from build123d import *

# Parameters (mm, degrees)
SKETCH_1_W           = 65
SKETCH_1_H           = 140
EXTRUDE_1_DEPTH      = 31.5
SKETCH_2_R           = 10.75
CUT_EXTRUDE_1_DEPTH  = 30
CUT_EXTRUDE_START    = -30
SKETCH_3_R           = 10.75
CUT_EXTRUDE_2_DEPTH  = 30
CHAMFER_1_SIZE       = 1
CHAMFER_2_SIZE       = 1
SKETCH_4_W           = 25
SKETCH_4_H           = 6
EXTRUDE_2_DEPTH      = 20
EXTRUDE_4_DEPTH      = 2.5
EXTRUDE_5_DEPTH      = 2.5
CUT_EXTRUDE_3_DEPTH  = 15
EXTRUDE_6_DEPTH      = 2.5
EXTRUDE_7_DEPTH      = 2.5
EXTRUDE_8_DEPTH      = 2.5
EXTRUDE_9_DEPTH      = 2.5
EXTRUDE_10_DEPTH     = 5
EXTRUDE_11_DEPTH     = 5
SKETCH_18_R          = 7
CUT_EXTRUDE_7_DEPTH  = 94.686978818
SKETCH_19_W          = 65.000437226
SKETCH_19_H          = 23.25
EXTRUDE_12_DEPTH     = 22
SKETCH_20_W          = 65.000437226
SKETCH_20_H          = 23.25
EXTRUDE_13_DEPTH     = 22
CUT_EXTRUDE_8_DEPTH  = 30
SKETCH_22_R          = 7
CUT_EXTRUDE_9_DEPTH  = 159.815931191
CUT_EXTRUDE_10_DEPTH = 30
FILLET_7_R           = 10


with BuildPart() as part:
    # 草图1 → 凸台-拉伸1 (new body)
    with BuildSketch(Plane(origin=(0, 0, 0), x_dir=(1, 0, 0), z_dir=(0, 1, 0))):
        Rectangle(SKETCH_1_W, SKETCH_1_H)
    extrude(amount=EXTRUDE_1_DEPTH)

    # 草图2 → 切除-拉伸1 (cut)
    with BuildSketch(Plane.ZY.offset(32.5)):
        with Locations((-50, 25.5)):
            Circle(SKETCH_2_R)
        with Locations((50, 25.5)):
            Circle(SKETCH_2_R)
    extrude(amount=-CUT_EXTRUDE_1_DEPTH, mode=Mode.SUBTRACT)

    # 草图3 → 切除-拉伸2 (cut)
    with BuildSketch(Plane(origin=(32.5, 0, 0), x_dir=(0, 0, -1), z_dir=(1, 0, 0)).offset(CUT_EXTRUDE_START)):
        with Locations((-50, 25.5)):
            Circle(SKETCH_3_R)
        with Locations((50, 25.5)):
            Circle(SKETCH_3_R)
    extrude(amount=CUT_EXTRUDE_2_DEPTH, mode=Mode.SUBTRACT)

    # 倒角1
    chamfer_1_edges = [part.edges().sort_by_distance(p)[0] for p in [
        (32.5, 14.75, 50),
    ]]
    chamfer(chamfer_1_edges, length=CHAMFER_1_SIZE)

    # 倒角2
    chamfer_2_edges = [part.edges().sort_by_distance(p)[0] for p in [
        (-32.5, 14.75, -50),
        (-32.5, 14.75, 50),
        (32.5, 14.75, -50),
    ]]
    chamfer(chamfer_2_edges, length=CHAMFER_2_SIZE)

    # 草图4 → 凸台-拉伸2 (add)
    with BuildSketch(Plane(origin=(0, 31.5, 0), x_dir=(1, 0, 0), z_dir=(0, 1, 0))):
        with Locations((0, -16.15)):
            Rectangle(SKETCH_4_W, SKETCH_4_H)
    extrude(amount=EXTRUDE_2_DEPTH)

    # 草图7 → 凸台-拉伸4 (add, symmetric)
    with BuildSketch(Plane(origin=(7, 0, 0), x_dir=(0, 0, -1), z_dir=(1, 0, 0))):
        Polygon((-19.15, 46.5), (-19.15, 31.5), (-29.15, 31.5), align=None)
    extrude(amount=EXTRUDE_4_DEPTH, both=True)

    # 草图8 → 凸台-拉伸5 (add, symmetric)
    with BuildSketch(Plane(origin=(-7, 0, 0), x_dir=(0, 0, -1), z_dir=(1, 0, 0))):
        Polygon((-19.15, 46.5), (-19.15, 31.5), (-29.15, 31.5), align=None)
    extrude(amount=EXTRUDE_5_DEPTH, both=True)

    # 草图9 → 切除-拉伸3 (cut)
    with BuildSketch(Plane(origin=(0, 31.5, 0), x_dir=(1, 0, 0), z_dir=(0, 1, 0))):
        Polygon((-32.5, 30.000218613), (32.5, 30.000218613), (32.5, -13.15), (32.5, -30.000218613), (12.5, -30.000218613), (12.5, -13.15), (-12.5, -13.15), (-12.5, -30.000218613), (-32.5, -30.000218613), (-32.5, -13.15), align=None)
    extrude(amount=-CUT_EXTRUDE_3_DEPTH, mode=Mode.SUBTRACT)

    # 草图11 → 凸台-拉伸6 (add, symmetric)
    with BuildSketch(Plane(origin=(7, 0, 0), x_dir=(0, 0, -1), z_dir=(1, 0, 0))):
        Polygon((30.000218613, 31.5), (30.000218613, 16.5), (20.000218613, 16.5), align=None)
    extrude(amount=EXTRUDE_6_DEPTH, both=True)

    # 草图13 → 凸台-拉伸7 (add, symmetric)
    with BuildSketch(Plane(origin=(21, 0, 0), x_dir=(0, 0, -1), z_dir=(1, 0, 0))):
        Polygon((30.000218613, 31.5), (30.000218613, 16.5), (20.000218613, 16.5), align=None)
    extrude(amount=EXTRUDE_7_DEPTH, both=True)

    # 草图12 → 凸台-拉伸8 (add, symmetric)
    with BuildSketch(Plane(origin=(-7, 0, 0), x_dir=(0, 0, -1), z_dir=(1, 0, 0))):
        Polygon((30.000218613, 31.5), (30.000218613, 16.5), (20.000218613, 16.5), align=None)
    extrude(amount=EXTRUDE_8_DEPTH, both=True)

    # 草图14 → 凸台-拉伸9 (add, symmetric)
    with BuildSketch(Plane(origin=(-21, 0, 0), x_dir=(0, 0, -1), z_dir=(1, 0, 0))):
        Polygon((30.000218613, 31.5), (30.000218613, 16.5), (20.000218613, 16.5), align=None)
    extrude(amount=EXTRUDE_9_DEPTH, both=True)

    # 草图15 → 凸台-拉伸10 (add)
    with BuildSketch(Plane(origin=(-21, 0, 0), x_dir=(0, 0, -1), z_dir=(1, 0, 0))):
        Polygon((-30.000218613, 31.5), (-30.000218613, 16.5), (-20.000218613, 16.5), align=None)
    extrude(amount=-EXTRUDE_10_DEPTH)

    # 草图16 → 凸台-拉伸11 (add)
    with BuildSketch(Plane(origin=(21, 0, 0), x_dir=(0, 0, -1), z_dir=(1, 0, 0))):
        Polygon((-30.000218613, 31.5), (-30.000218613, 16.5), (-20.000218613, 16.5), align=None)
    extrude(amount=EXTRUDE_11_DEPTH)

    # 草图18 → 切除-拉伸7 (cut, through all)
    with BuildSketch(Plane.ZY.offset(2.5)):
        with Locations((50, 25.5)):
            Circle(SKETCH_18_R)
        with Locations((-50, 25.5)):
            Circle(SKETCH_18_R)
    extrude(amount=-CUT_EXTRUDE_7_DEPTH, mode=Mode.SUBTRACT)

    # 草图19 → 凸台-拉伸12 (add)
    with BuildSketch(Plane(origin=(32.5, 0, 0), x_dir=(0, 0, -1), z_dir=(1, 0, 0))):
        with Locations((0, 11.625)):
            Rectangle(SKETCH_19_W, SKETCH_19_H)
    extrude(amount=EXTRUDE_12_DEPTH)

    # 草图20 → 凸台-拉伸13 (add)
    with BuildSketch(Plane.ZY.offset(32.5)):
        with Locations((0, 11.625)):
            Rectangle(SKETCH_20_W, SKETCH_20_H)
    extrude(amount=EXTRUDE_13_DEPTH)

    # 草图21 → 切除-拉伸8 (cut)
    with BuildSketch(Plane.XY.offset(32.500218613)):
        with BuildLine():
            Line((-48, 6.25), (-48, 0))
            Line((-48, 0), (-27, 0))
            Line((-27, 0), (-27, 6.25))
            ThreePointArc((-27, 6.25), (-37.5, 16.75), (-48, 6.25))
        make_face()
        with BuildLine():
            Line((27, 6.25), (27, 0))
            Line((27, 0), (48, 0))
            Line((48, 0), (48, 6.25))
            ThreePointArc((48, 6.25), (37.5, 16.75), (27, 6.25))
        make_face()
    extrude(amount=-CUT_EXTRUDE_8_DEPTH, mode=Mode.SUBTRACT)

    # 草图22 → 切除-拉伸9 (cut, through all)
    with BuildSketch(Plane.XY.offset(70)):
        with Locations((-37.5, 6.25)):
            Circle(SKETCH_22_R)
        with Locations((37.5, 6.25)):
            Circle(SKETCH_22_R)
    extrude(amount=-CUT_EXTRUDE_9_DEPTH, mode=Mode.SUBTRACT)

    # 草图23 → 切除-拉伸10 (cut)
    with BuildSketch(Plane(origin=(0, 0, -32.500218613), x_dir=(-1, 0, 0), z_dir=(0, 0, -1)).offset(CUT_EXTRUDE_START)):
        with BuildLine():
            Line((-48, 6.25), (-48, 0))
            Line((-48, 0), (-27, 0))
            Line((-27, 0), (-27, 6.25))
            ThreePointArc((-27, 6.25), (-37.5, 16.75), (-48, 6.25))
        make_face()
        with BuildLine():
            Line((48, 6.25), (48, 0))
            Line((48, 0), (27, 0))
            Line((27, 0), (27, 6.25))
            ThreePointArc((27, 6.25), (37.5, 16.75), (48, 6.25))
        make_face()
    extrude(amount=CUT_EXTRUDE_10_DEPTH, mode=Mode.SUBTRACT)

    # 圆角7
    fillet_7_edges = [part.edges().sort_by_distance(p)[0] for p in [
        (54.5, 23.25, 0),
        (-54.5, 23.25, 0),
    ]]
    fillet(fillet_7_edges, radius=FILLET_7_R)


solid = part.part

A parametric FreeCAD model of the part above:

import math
import FreeCAD as App
import Part
import Sketcher
from FreeCAD import Vector


def edges_at(feature, points):
    """Names of the edges that pass closest to the given points."""
    edges = feature.Shape.Edges
    near = lambda p: min(range(len(edges)), key=lambda i: edges[i].distToShape(Part.Vertex(*p))[0])
    return sorted({f"Edge{near(p) + 1}" for p in points})

doc = App.newDocument("Part")
params = doc.addObject("Spreadsheet::Sheet", "Params")
for row, (alias, value) in enumerate([
    ("sketch1_width", "65 mm"),
    ("sketch1_height", "140 mm"),
    ("pad1_length", "31.5 mm"),
    ("sketch2_diameter", "21.5 mm"),
    ("pocket1_length", "30 mm"),
    ("sketch3_diameter", "21.5 mm"),
    ("pocket2_length", "30 mm"),
    ("chamfer_size", "1 mm"),
    ("chamfer2_size", "1 mm"),
    ("sketch4_width", "25 mm"),
    ("sketch4_height", "6 mm"),
    ("pad2_length", "20 mm"),
    ("sketch5_width", "15 mm"),
    ("sketch5_height", "10 mm"),
    ("pad3_length", "5 mm"),
    ("sketch6_width", "15 mm"),
    ("sketch6_height", "10 mm"),
    ("pad4_length", "5 mm"),
    ("sketch7_width", "65 mm"),
    ("sketch7_width2", "20 mm"),
    ("pocket3_length", "15 mm"),
    ("sketch8_width", "15 mm"),
    ("sketch8_height", "10 mm"),
    ("pad5_length", "5 mm"),
    ("sketch9_width", "15 mm"),
    ("sketch9_height", "10 mm"),
    ("pad6_length", "5 mm"),
    ("sketch10_width", "15 mm"),
    ("sketch10_height", "10 mm"),
    ("pad7_length", "5 mm"),
    ("sketch11_width", "15 mm"),
    ("sketch11_height", "10 mm"),
    ("pad8_length", "5 mm"),
    ("sketch12_width", "15 mm"),
    ("sketch12_height", "10 mm"),
    ("pad9_length", "5 mm"),
    ("sketch13_width", "15 mm"),
    ("sketch13_height", "10 mm"),
    ("pad10_length", "5 mm"),
    ("sketch14_diameter", "14 mm"),
    ("sketch15_width", "23.25 mm"),
    ("pad11_length", "22 mm"),
    ("sketch16_width", "23.25 mm"),
    ("pad12_length", "22 mm"),
    ("sketch17_radius", "10.5 mm"),
    ("sketch17_height", "6.25 mm"),
    ("pocket5_length", "30 mm"),
    ("sketch18_diameter", "14 mm"),
    ("sketch19_radius", "10.5 mm"),
    ("sketch19_height", "6.25 mm"),
    ("pocket7_length", "30 mm"),
    ("fillet_radius", "10 mm"),
], start=1):
    params.set(f"A{row}", alias)
    params.set(f"B{row}", "=" + value)
    params.setAlias(f"B{row}", alias)

body = doc.addObject("PartDesign::Body", "Body")

# Sketch on XZ plane
sketch1 = doc.addObject("Sketcher::SketchObject", "Sketch")
body.addObject(sketch1)
sketch1.AttachmentSupport = (doc.XZ_Plane, [""])
sketch1.MapMode = "FlatFace"
sketch1.addGeometry([
    Part.LineSegment(Vector(-32, -70, 0), Vector(-32, 70, 0)),
    Part.LineSegment(Vector(-32, 70, 0), Vector(32, 70, 0)),
    Part.LineSegment(Vector(32, 70, 0), Vector(32, -70, 0)),
    Part.LineSegment(Vector(32, -70, 0), Vector(-32, -70, 0)),
], False)
sketch1.addConstraint([
    Sketcher.Constraint("Coincident", 0, 2, 1, 1),
    Sketcher.Constraint("Coincident", 1, 2, 2, 1),
    Sketcher.Constraint("Coincident", 2, 2, 3, 1),
    Sketcher.Constraint("Coincident", 3, 2, 0, 1),
    Sketcher.Constraint("Vertical", 0),
    Sketcher.Constraint("Horizontal", 1),
    Sketcher.Constraint("Vertical", 2),
    Sketcher.Constraint("Horizontal", 3),
    Sketcher.Constraint("Symmetric", 0, 2, 2, 2, -1, 1),
    Sketcher.Constraint("DistanceX", 1, 1, 1, 2, 65.0),
    Sketcher.Constraint("DistanceY", 0, 1, 0, 2, 140.0),
])
sketch1.setExpression("Constraints[9]", "Params.sketch1_width")
sketch1.setExpression("Constraints[10]", "Params.sketch1_height")
pad1 = doc.addObject("PartDesign::Pad", "Pad")
body.addObject(pad1)
pad1.Profile = sketch1
pad1.setExpression("Length", "Params.pad1_length")
pad1.Reversed = True

# Sketch on YZ plane
sketch2 = doc.addObject("Sketcher::SketchObject", "Sketch001")
body.addObject(sketch2)
sketch2.AttachmentSupport = (doc.YZ_Plane, [""])
sketch2.MapMode = "FlatFace"
sketch2.AttachmentOffset = App.Placement(Vector(0, 0, -32.5), App.Rotation())
sketch2.addGeometry([
    Part.Circle(Vector(26, -50, 0), Vector(0, 0, 1), 11),
    Part.Circle(Vector(26, 50, 0), Vector(0, 0, 1), 11),
], False)
sketch2.addConstraint([
    Sketcher.Constraint("Equal", 0, 1),
    Sketcher.Constraint("Symmetric", 0, 3, 1, 3, -1),
    Sketcher.Constraint("Diameter", 0, 21.5),
    Sketcher.Constraint("DistanceY", 0, 3, -1, 1, 50.0),
    Sketcher.Constraint("DistanceX", -1, 1, 0, 3, 25.5),
])
sketch2.setExpression("Constraints[2]", "Params.sketch2_diameter")
pocket1 = doc.addObject("PartDesign::Pocket", "Pocket")
body.addObject(pocket1)
pocket1.Profile = sketch2
pocket1.setExpression("Length", "Params.pocket1_length")
pocket1.Reversed = True

# Sketch on YZ plane
sketch3 = doc.addObject("Sketcher::SketchObject", "Sketch002")
body.addObject(sketch3)
sketch3.AttachmentSupport = (doc.YZ_Plane, [""])
sketch3.MapMode = "FlatFace"
sketch3.AttachmentOffset = App.Placement(Vector(0, 0, 2.5), App.Rotation())
sketch3.addGeometry([
    Part.Circle(Vector(26, 50, 0), Vector(0, 0, 1), 11),
    Part.Circle(Vector(26, -50, 0), Vector(0, 0, 1), 11),
], False)
sketch3.addConstraint([
    Sketcher.Constraint("Equal", 0, 1),
    Sketcher.Constraint("Symmetric", 0, 3, 1, 3, -1),
    Sketcher.Constraint("Diameter", 0, 21.5),
    Sketcher.Constraint("DistanceY", -1, 1, 0, 3, 50.0),
    Sketcher.Constraint("DistanceX", -1, 1, 0, 3, 25.5),
])
sketch3.setExpression("Constraints[2]", "Params.sketch3_diameter")
pocket2 = doc.addObject("PartDesign::Pocket", "Pocket001")
body.addObject(pocket2)
pocket2.Profile = sketch3
pocket2.setExpression("Length", "Params.pocket2_length")
pocket2.Reversed = True
doc.recompute()

chamfer = doc.addObject("PartDesign::Chamfer", "Chamfer")
body.addObject(chamfer)
chamfer.Base = (pocket2, edges_at(pocket2, [(32.5, 14.75, 50)]))
chamfer.setExpression("Size", "Params.chamfer_size")
doc.recompute()

chamfer2 = doc.addObject("PartDesign::Chamfer", "Chamfer001")
body.addObject(chamfer2)
chamfer2.Base = (chamfer, edges_at(chamfer, [(-32.5, 14.75, -50), (-32.5, 14.75, 50), (32.5, 14.75, -50)]))
chamfer2.setExpression("Size", "Params.chamfer2_size")

# Sketch on XZ plane
sketch4 = doc.addObject("Sketcher::SketchObject", "Sketch003")
body.addObject(sketch4)
sketch4.AttachmentSupport = (doc.XZ_Plane, [""])
sketch4.MapMode = "FlatFace"
sketch4.AttachmentOffset = App.Placement(Vector(0, 0, -31.5), App.Rotation())
sketch4.addGeometry([
    Part.LineSegment(Vector(-12, 13, 0), Vector(-12, 19, 0)),
    Part.LineSegment(Vector(-12, 19, 0), Vector(12, 19, 0)),
    Part.LineSegment(Vector(12, 19, 0), Vector(12, 13, 0)),
    Part.LineSegment(Vector(12, 13, 0), Vector(-12, 13, 0)),
], False)
sketch4.addConstraint([
    Sketcher.Constraint("Coincident", 0, 2, 1, 1),
    Sketcher.Constraint("Coincident", 1, 2, 2, 1),
    Sketcher.Constraint("Coincident", 2, 2, 3, 1),
    Sketcher.Constraint("Coincident", 3, 2, 0, 1),
    Sketcher.Constraint("Vertical", 0),
    Sketcher.Constraint("Horizontal", 1),
    Sketcher.Constraint("Vertical", 2),
    Sketcher.Constraint("Horizontal", 3),
    Sketcher.Constraint("DistanceX", 1, 1, 1, 2, 25.0),
    Sketcher.Constraint("DistanceY", 0, 1, 0, 2, 6.0),
    Sketcher.Constraint("DistanceX", 0, 2, -1, 1, 12.5),
    Sketcher.Constraint("DistanceY", -1, 1, 0, 2, 19.15),
])
sketch4.setExpression("Constraints[8]", "Params.sketch4_width")
sketch4.setExpression("Constraints[9]", "Params.sketch4_height")
pad2 = doc.addObject("PartDesign::Pad", "Pad001")
body.addObject(pad2)
pad2.Profile = sketch4
pad2.setExpression("Length", "Params.pad2_length")
pad2.Reversed = True

# Sketch on YZ plane
sketch5 = doc.addObject("Sketcher::SketchObject", "Sketch004")
body.addObject(sketch5)
sketch5.AttachmentSupport = (doc.YZ_Plane, [""])
sketch5.MapMode = "FlatFace"
sketch5.AttachmentOffset = App.Placement(Vector(0, 0, 7), App.Rotation())
sketch5.addGeometry([
    Part.LineSegment(Vector(32, 19, 0), Vector(46, 19, 0)),
    Part.LineSegment(Vector(46, 19, 0), Vector(32, 29, 0)),
    Part.LineSegment(Vector(32, 29, 0), Vector(32, 19, 0)),
], False)
sketch5.addConstraint([
    Sketcher.Constraint("Coincident", 0, 2, 1, 1),
    Sketcher.Constraint("Coincident", 1, 2, 2, 1),
    Sketcher.Constraint("Coincident", 2, 2, 0, 1),
    Sketcher.Constraint("Horizontal", 0),
    Sketcher.Constraint("Vertical", 2),
    Sketcher.Constraint("DistanceX", 0, 1, 0, 2, 15.0),
    Sketcher.Constraint("DistanceY", 2, 2, 2, 1, 10.0),
    Sketcher.Constraint("DistanceX", -1, 1, 0, 2, 46.5),
    Sketcher.Constraint("DistanceY", -1, 1, 0, 2, 19.15),
])
sketch5.setExpression("Constraints[5]", "Params.sketch5_width")
sketch5.setExpression("Constraints[6]", "Params.sketch5_height")
pad3 = doc.addObject("PartDesign::Pad", "Pad002")
body.addObject(pad3)
pad3.Profile = sketch5
pad3.setExpression("Length", "Params.pad3_length")
pad3.Midplane = True

# Sketch on YZ plane
sketch6 = doc.addObject("Sketcher::SketchObject", "Sketch005")
body.addObject(sketch6)
sketch6.AttachmentSupport = (doc.YZ_Plane, [""])
sketch6.MapMode = "FlatFace"
sketch6.AttachmentOffset = App.Placement(Vector(0, 0, -7), App.Rotation())
sketch6.addGeometry([
    Part.LineSegment(Vector(32, 19, 0), Vector(46, 19, 0)),
    Part.LineSegment(Vector(46, 19, 0), Vector(32, 29, 0)),
    Part.LineSegment(Vector(32, 29, 0), Vector(32, 19, 0)),
], False)
sketch6.addConstraint([
    Sketcher.Constraint("Coincident", 0, 2, 1, 1),
    Sketcher.Constraint("Coincident", 1, 2, 2, 1),
    Sketcher.Constraint("Coincident", 2, 2, 0, 1),
    Sketcher.Constraint("Horizontal", 0),
    Sketcher.Constraint("Vertical", 2),
    Sketcher.Constraint("DistanceX", 0, 1, 0, 2, 15.0),
    Sketcher.Constraint("DistanceY", 2, 2, 2, 1, 10.0),
    Sketcher.Constraint("DistanceX", -1, 1, 0, 2, 46.5),
    Sketcher.Constraint("DistanceY", -1, 1, 0, 2, 19.15),
])
sketch6.setExpression("Constraints[5]", "Params.sketch6_width")
sketch6.setExpression("Constraints[6]", "Params.sketch6_height")
pad4 = doc.addObject("PartDesign::Pad", "Pad003")
body.addObject(pad4)
pad4.Profile = sketch6
pad4.setExpression("Length", "Params.pad4_length")
pad4.Midplane = True

# Sketch on XZ plane
sketch7 = doc.addObject("Sketcher::SketchObject", "Sketch006")
body.addObject(sketch7)
sketch7.AttachmentSupport = (doc.XZ_Plane, [""])
sketch7.MapMode = "FlatFace"
sketch7.AttachmentOffset = App.Placement(Vector(0, 0, -31.5), App.Rotation())
sketch7.addGeometry([
    Part.LineSegment(Vector(32, -30, 0), Vector(-32, -30, 0)),  # 0
    Part.LineSegment(Vector(-32, -30, 0), Vector(-32, 30, 0)),  # 1
    Part.LineSegment(Vector(-32, 30, 0), Vector(-12, 30, 0)),  # 2
    Part.LineSegment(Vector(-12, 30, 0), Vector(-12, 13, 0)),  # 3
    Part.LineSegment(Vector(-12, 13, 0), Vector(12, 13, 0)),  # 4
    Part.LineSegment(Vector(12, 13, 0), Vector(12, 30, 0)),  # 5
    Part.LineSegment(Vector(12, 30, 0), Vector(32, 30, 0)),  # 6
    Part.LineSegment(Vector(32, 30, 0), Vector(32, -30, 0)),  # 7
], False)
sketch7.addConstraint([
    Sketcher.Constraint("Coincident", 0, 2, 1, 1),
    Sketcher.Constraint("Coincident", 1, 2, 2, 1),
    Sketcher.Constraint("Coincident", 2, 2, 3, 1),
    Sketcher.Constraint("Coincident", 3, 2, 4, 1),
    Sketcher.Constraint("Coincident", 4, 2, 5, 1),
    Sketcher.Constraint("Coincident", 5, 2, 6, 1),
    Sketcher.Constraint("Coincident", 6, 2, 7, 1),
    Sketcher.Constraint("Coincident", 7, 2, 0, 1),
    Sketcher.Constraint("Horizontal", 0),
    Sketcher.Constraint("Vertical", 1),
    Sketcher.Constraint("Horizontal", 2),
    Sketcher.Constraint("Vertical", 3),
    Sketcher.Constraint("Horizontal", 4),
    Sketcher.Constraint("Vertical", 5),
    Sketcher.Constraint("Horizontal", 6),
    Sketcher.Constraint("Vertical", 7),
    Sketcher.Constraint("Symmetric", 0, 2, 6, 2, -1, 1),
    Sketcher.Constraint("Symmetric", 2, 2, 5, 2, -2),
    Sketcher.Constraint("DistanceX", 0, 2, 0, 1, 65.0),
    Sketcher.Constraint("DistanceX", 2, 1, 2, 2, 20.0),
    Sketcher.Constraint("DistanceY", -1, 1, 3, 2, 13.15),
    Sketcher.Constraint("DistanceY", 3, 2, 3, 1, 16.850219),
])
sketch7.setExpression("Constraints[18]", "Params.sketch7_width")
sketch7.setExpression("Constraints[19]", "Params.sketch7_width2")
pocket3 = doc.addObject("PartDesign::Pocket", "Pocket002")
body.addObject(pocket3)
pocket3.Profile = sketch7
pocket3.setExpression("Length", "Params.pocket3_length")
pocket3.Reversed = True

# Sketch on YZ plane
sketch8 = doc.addObject("Sketcher::SketchObject", "Sketch007")
body.addObject(sketch8)
sketch8.AttachmentSupport = (doc.YZ_Plane, [""])
sketch8.MapMode = "FlatFace"
sketch8.AttachmentOffset = App.Placement(Vector(0, 0, 7), App.Rotation())
sketch8.addGeometry([
    Part.LineSegment(Vector(16, -30, 0), Vector(32, -30, 0)),
    Part.LineSegment(Vector(32, -30, 0), Vector(16, -20, 0)),
    Part.LineSegment(Vector(16, -20, 0), Vector(16, -30, 0)),
], False)
sketch8.addConstraint([
    Sketcher.Constraint("Coincident", 0, 2, 1, 1),
    Sketcher.Constraint("Coincident", 1, 2, 2, 1),
    Sketcher.Constraint("Coincident", 2, 2, 0, 1),
    Sketcher.Constraint("Horizontal", 0),
    Sketcher.Constraint("Vertical", 2),
    Sketcher.Constraint("DistanceX", 0, 1, 0, 2, 15.0),
    Sketcher.Constraint("DistanceY", 2, 2, 2, 1, 10.0),
    Sketcher.Constraint("DistanceX", -1, 1, 0, 2, 31.5),
    Sketcher.Constraint("DistanceY", 0, 2, -1, 1, 30.000219),
])
sketch8.setExpression("Constraints[5]", "Params.sketch8_width")
sketch8.setExpression("Constraints[6]", "Params.sketch8_height")
pad5 = doc.addObject("PartDesign::Pad", "Pad004")
body.addObject(pad5)
pad5.Profile = sketch8
pad5.setExpression("Length", "Params.pad5_length")
pad5.Midplane = True

# Sketch on YZ plane
sketch9 = doc.addObject("Sketcher::SketchObject", "Sketch008")
body.addObject(sketch9)
sketch9.AttachmentSupport = (doc.YZ_Plane, [""])
sketch9.MapMode = "FlatFace"
sketch9.AttachmentOffset = App.Placement(Vector(0, 0, 21), App.Rotation())
sketch9.addGeometry([
    Part.LineSegment(Vector(16, -30, 0), Vector(32, -30, 0)),
    Part.LineSegment(Vector(32, -30, 0), Vector(16, -20, 0)),
    Part.LineSegment(Vector(16, -20, 0), Vector(16, -30, 0)),
], False)
sketch9.addConstraint([
    Sketcher.Constraint("Coincident", 0, 2, 1, 1),
    Sketcher.Constraint("Coincident", 1, 2, 2, 1),
    Sketcher.Constraint("Coincident", 2, 2, 0, 1),
    Sketcher.Constraint("Horizontal", 0),
    Sketcher.Constraint("Vertical", 2),
    Sketcher.Constraint("DistanceX", 0, 1, 0, 2, 15.0),
    Sketcher.Constraint("DistanceY", 2, 2, 2, 1, 10.0),
    Sketcher.Constraint("DistanceX", -1, 1, 0, 2, 31.5),
    Sketcher.Constraint("DistanceY", 0, 2, -1, 1, 30.000219),
])
sketch9.setExpression("Constraints[5]", "Params.sketch9_width")
sketch9.setExpression("Constraints[6]", "Params.sketch9_height")
pad6 = doc.addObject("PartDesign::Pad", "Pad005")
body.addObject(pad6)
pad6.Profile = sketch9
pad6.setExpression("Length", "Params.pad6_length")
pad6.Midplane = True

# Sketch on YZ plane
sketch10 = doc.addObject("Sketcher::SketchObject", "Sketch009")
body.addObject(sketch10)
sketch10.AttachmentSupport = (doc.YZ_Plane, [""])
sketch10.MapMode = "FlatFace"
sketch10.AttachmentOffset = App.Placement(Vector(0, 0, -7), App.Rotation())
sketch10.addGeometry([
    Part.LineSegment(Vector(16, -30, 0), Vector(32, -30, 0)),
    Part.LineSegment(Vector(32, -30, 0), Vector(16, -20, 0)),
    Part.LineSegment(Vector(16, -20, 0), Vector(16, -30, 0)),
], False)
sketch10.addConstraint([
    Sketcher.Constraint("Coincident", 0, 2, 1, 1),
    Sketcher.Constraint("Coincident", 1, 2, 2, 1),
    Sketcher.Constraint("Coincident", 2, 2, 0, 1),
    Sketcher.Constraint("Horizontal", 0),
    Sketcher.Constraint("Vertical", 2),
    Sketcher.Constraint("DistanceX", 0, 1, 0, 2, 15.0),
    Sketcher.Constraint("DistanceY", 2, 2, 2, 1, 10.0),
    Sketcher.Constraint("DistanceX", -1, 1, 0, 2, 31.5),
    Sketcher.Constraint("DistanceY", 0, 2, -1, 1, 30.000219),
])
sketch10.setExpression("Constraints[5]", "Params.sketch10_width")
sketch10.setExpression("Constraints[6]", "Params.sketch10_height")
pad7 = doc.addObject("PartDesign::Pad", "Pad006")
body.addObject(pad7)
pad7.Profile = sketch10
pad7.setExpression("Length", "Params.pad7_length")
pad7.Midplane = True

# Sketch on YZ plane
sketch11 = doc.addObject("Sketcher::SketchObject", "Sketch010")
body.addObject(sketch11)
sketch11.AttachmentSupport = (doc.YZ_Plane, [""])
sketch11.MapMode = "FlatFace"
sketch11.AttachmentOffset = App.Placement(Vector(0, 0, -21), App.Rotation())
sketch11.addGeometry([
    Part.LineSegment(Vector(16, -30, 0), Vector(32, -30, 0)),
    Part.LineSegment(Vector(32, -30, 0), Vector(16, -20, 0)),
    Part.LineSegment(Vector(16, -20, 0), Vector(16, -30, 0)),
], False)
sketch11.addConstraint([
    Sketcher.Constraint("Coincident", 0, 2, 1, 1),
    Sketcher.Constraint("Coincident", 1, 2, 2, 1),
    Sketcher.Constraint("Coincident", 2, 2, 0, 1),
    Sketcher.Constraint("Horizontal", 0),
    Sketcher.Constraint("Vertical", 2),
    Sketcher.Constraint("DistanceX", 0, 1, 0, 2, 15.0),
    Sketcher.Constraint("DistanceY", 2, 2, 2, 1, 10.0),
    Sketcher.Constraint("DistanceX", -1, 1, 0, 2, 31.5),
    Sketcher.Constraint("DistanceY", 0, 2, -1, 1, 30.000219),
])
sketch11.setExpression("Constraints[5]", "Params.sketch11_width")
sketch11.setExpression("Constraints[6]", "Params.sketch11_height")
pad8 = doc.addObject("PartDesign::Pad", "Pad007")
body.addObject(pad8)
pad8.Profile = sketch11
pad8.setExpression("Length", "Params.pad8_length")
pad8.Midplane = True

# Sketch on YZ plane
sketch12 = doc.addObject("Sketcher::SketchObject", "Sketch011")
body.addObject(sketch12)
sketch12.AttachmentSupport = (doc.YZ_Plane, [""])
sketch12.MapMode = "FlatFace"
sketch12.AttachmentOffset = App.Placement(Vector(0, 0, -21), App.Rotation())
sketch12.addGeometry([
    Part.LineSegment(Vector(32, 30, 0), Vector(16, 30, 0)),
    Part.LineSegment(Vector(16, 30, 0), Vector(16, 20, 0)),
    Part.LineSegment(Vector(16, 20, 0), Vector(32, 30, 0)),
], False)
sketch12.addConstraint([
    Sketcher.Constraint("Coincident", 0, 2, 1, 1),
    Sketcher.Constraint("Coincident", 1, 2, 2, 1),
    Sketcher.Constraint("Coincident", 2, 2, 0, 1),
    Sketcher.Constraint("Horizontal", 0),
    Sketcher.Constraint("Vertical", 1),
    Sketcher.Constraint("DistanceX", 0, 2, 0, 1, 15.0),
    Sketcher.Constraint("DistanceY", 1, 2, 1, 1, 10.0),
    Sketcher.Constraint("DistanceX", -1, 1, 0, 2, 16.5),
    Sketcher.Constraint("DistanceY", -1, 1, 0, 2, 30.000219),
])
sketch12.setExpression("Constraints[5]", "Params.sketch12_width")
sketch12.setExpression("Constraints[6]", "Params.sketch12_height")
pad9 = doc.addObject("PartDesign::Pad", "Pad008")
body.addObject(pad9)
pad9.Profile = sketch12
pad9.setExpression("Length", "Params.pad9_length")
pad9.Reversed = True

# Sketch on YZ plane
sketch13 = doc.addObject("Sketcher::SketchObject", "Sketch012")
body.addObject(sketch13)
sketch13.AttachmentSupport = (doc.YZ_Plane, [""])
sketch13.MapMode = "FlatFace"
sketch13.AttachmentOffset = App.Placement(Vector(0, 0, 21), App.Rotation())
sketch13.addGeometry([
    Part.LineSegment(Vector(32, 30, 0), Vector(16, 30, 0)),
    Part.LineSegment(Vector(16, 30, 0), Vector(16, 20, 0)),
    Part.LineSegment(Vector(16, 20, 0), Vector(32, 30, 0)),
], False)
sketch13.addConstraint([
    Sketcher.Constraint("Coincident", 0, 2, 1, 1),
    Sketcher.Constraint("Coincident", 1, 2, 2, 1),
    Sketcher.Constraint("Coincident", 2, 2, 0, 1),
    Sketcher.Constraint("Horizontal", 0),
    Sketcher.Constraint("Vertical", 1),
    Sketcher.Constraint("DistanceX", 0, 2, 0, 1, 15.0),
    Sketcher.Constraint("DistanceY", 1, 2, 1, 1, 10.0),
    Sketcher.Constraint("DistanceX", -1, 1, 0, 2, 16.5),
    Sketcher.Constraint("DistanceY", -1, 1, 0, 2, 30.000219),
])
sketch13.setExpression("Constraints[5]", "Params.sketch13_width")
sketch13.setExpression("Constraints[6]", "Params.sketch13_height")
pad10 = doc.addObject("PartDesign::Pad", "Pad009")
body.addObject(pad10)
pad10.Profile = sketch13
pad10.setExpression("Length", "Params.pad10_length")

# Sketch on YZ plane
sketch14 = doc.addObject("Sketcher::SketchObject", "Sketch013")
body.addObject(sketch14)
sketch14.AttachmentSupport = (doc.YZ_Plane, [""])
sketch14.MapMode = "FlatFace"
sketch14.AttachmentOffset = App.Placement(Vector(0, 0, -2.5), App.Rotation())
sketch14.addGeometry([
    Part.Circle(Vector(26, 50, 0), Vector(0, 0, 1), 7),
    Part.Circle(Vector(26, -50, 0), Vector(0, 0, 1), 7),
], False)
sketch14.addConstraint([
    Sketcher.Constraint("Equal", 0, 1),
    Sketcher.Constraint("Symmetric", 0, 3, 1, 3, -1),
    Sketcher.Constraint("Diameter", 0, 14.0),
    Sketcher.Constraint("DistanceY", -1, 1, 0, 3, 50.0),
    Sketcher.Constraint("DistanceX", -1, 1, 0, 3, 25.5),
])
sketch14.setExpression("Constraints[2]", "Params.sketch14_diameter")
pocket4 = doc.addObject("PartDesign::Pocket", "Pocket003")
body.addObject(pocket4)
pocket4.Profile = sketch14
pocket4.Type = "ThroughAll"
pocket4.Reversed = True

# Sketch on YZ plane
sketch15 = doc.addObject("Sketcher::SketchObject", "Sketch014")
body.addObject(sketch15)
sketch15.AttachmentSupport = (doc.YZ_Plane, [""])
sketch15.MapMode = "FlatFace"
sketch15.AttachmentOffset = App.Placement(Vector(0, 0, 32.5), App.Rotation())
sketch15.addGeometry([
    Part.LineSegment(Vector(23, 33, 0), Vector(0, 33, 0)),
    Part.LineSegment(Vector(0, 33, 0), Vector(0, -33, 0)),
    Part.LineSegment(Vector(0, -33, 0), Vector(23, -33, 0)),
    Part.LineSegment(Vector(23, -33, 0), Vector(23, 33, 0)),
], False)
sketch15.addConstraint([
    Sketcher.Constraint("Coincident", 0, 2, 1, 1),
    Sketcher.Constraint("Coincident", 1, 2, 2, 1),
    Sketcher.Constraint("Coincident", 2, 2, 3, 1),
    Sketcher.Constraint("Coincident", 3, 2, 0, 1),
    Sketcher.Constraint("Horizontal", 0),
    Sketcher.Constraint("Vertical", 1),
    Sketcher.Constraint("Horizontal", 2),
    Sketcher.Constraint("Vertical", 3),
    Sketcher.Constraint("Symmetric", 0, 2, 1, 2, -1, 1),
    Sketcher.Constraint("DistanceX", 0, 2, 0, 1, 23.25),
    Sketcher.Constraint("DistanceY", 1, 2, 1, 1, 65.000437),
])
sketch15.setExpression("Constraints[9]", "Params.sketch15_width")
pad11 = doc.addObject("PartDesign::Pad", "Pad010")
body.addObject(pad11)
pad11.Profile = sketch15
pad11.setExpression("Length", "Params.pad11_length")

# Sketch on YZ plane
sketch16 = doc.addObject("Sketcher::SketchObject", "Sketch015")
body.addObject(sketch16)
sketch16.AttachmentSupport = (doc.YZ_Plane, [""])
sketch16.MapMode = "FlatFace"
sketch16.AttachmentOffset = App.Placement(Vector(0, 0, -32.5), App.Rotation())
sketch16.addGeometry([
    Part.LineSegment(Vector(23, -33, 0), Vector(0, -33, 0)),
    Part.LineSegment(Vector(0, -33, 0), Vector(0, 33, 0)),
    Part.LineSegment(Vector(0, 33, 0), Vector(23, 33, 0)),
    Part.LineSegment(Vector(23, 33, 0), Vector(23, -33, 0)),
], False)
sketch16.addConstraint([
    Sketcher.Constraint("Coincident", 0, 2, 1, 1),
    Sketcher.Constraint("Coincident", 1, 2, 2, 1),
    Sketcher.Constraint("Coincident", 2, 2, 3, 1),
    Sketcher.Constraint("Coincident", 3, 2, 0, 1),
    Sketcher.Constraint("Horizontal", 0),
    Sketcher.Constraint("Vertical", 1),
    Sketcher.Constraint("Horizontal", 2),
    Sketcher.Constraint("Vertical", 3),
    Sketcher.Constraint("Symmetric", 0, 2, 1, 2, -1, 1),
    Sketcher.Constraint("DistanceX", 0, 2, 0, 1, 23.25),
    Sketcher.Constraint("DistanceY", 1, 1, 1, 2, 65.000437),
])
sketch16.setExpression("Constraints[9]", "Params.sketch16_width")
pad12 = doc.addObject("PartDesign::Pad", "Pad011")
body.addObject(pad12)
pad12.Profile = sketch16
pad12.setExpression("Length", "Params.pad12_length")
pad12.Reversed = True

# Sketch on XY plane
sketch17 = doc.addObject("Sketcher::SketchObject", "Sketch016")
body.addObject(sketch17)
sketch17.AttachmentSupport = (doc.XY_Plane, [""])
sketch17.MapMode = "FlatFace"
sketch17.AttachmentOffset = App.Placement(Vector(0, 0, 32.500219), App.Rotation())
sketch17.addGeometry([
    Part.LineSegment(Vector(-48, 6, 0), Vector(-48, 0, 0)),  # 0
    Part.LineSegment(Vector(-48, 0, 0), Vector(-27, 0, 0)),  # 1
    Part.LineSegment(Vector(-27, 0, 0), Vector(-27, 6, 0)),  # 2
    Part.ArcOfCircle(Part.Circle(Vector(-38, 6, 0), Vector(0, 0, 1), 10), math.radians(0), math.radians(180)),  # 3
    Part.LineSegment(Vector(27, 6, 0), Vector(27, 0, 0)),  # 4
    Part.LineSegment(Vector(27, 0, 0), Vector(48, 0, 0)),  # 5
    Part.LineSegment(Vector(48, 0, 0), Vector(48, 6, 0)),  # 6
    Part.ArcOfCircle(Part.Circle(Vector(38, 6, 0), Vector(0, 0, 1), 10), math.radians(0), math.radians(180)),  # 7
], False)
sketch17.addConstraint([
    Sketcher.Constraint("Coincident", 0, 2, 1, 1),
    Sketcher.Constraint("Coincident", 1, 2, 2, 1),
    Sketcher.Constraint("Tangent", 2, 2, 3, 1),
    Sketcher.Constraint("Tangent", 3, 2, 0, 1),
    Sketcher.Constraint("Coincident", 4, 2, 5, 1),
    Sketcher.Constraint("Coincident", 5, 2, 6, 1),
    Sketcher.Constraint("Tangent", 6, 2, 7, 1),
    Sketcher.Constraint("Tangent", 7, 2, 4, 1),
    Sketcher.Constraint("Vertical", 0),
    Sketcher.Constraint("Horizontal", 1),
    Sketcher.Constraint("Vertical", 2),
    Sketcher.Constraint("Vertical", 4),
    Sketcher.Constraint("Horizontal", 5),
    Sketcher.Constraint("Vertical", 6),
    Sketcher.Constraint("Equal", 3, 7),
    Sketcher.Constraint("Symmetric", 1, 2, 4, 2, -1, 1),
    Sketcher.Constraint("PointOnObject", 0, 2, -1),
    Sketcher.Constraint("Horizontal", 3, 3, 7, 3),
    Sketcher.Constraint("Radius", 3, 10.5),
    Sketcher.Constraint("DistanceX", 0, 2, -1, 1, 48.0),
    Sketcher.Constraint("DistanceY", 0, 2, 0, 1, 6.25),
])
sketch17.setExpression("Constraints[18]", "Params.sketch17_radius")
sketch17.setExpression("Constraints[20]", "Params.sketch17_height")
pocket5 = doc.addObject("PartDesign::Pocket", "Pocket004")
body.addObject(pocket5)
pocket5.Profile = sketch17
pocket5.setExpression("Length", "Params.pocket5_length")

# Sketch on XY plane
sketch18 = doc.addObject("Sketcher::SketchObject", "Sketch017")
body.addObject(sketch18)
sketch18.AttachmentSupport = (doc.XY_Plane, [""])
sketch18.MapMode = "FlatFace"
sketch18.AttachmentOffset = App.Placement(Vector(0, 0, 70), App.Rotation())
sketch18.addGeometry([
    Part.Circle(Vector(-38, 6, 0), Vector(0, 0, 1), 7),
    Part.Circle(Vector(38, 6, 0), Vector(0, 0, 1), 7),
], False)
sketch18.addConstraint([
    Sketcher.Constraint("Equal", 0, 1),
    Sketcher.Constraint("Symmetric", 0, 3, 1, 3, -2),
    Sketcher.Constraint("Diameter", 0, 14.0),
    Sketcher.Constraint("DistanceX", 0, 3, 1, 3, 75.0),
    Sketcher.Constraint("DistanceY", -1, 1, 0, 3, 6.25),
])
sketch18.setExpression("Constraints[2]", "Params.sketch18_diameter")
pocket6 = doc.addObject("PartDesign::Pocket", "Pocket005")
body.addObject(pocket6)
pocket6.Profile = sketch18
pocket6.Type = "ThroughAll"

# Sketch on XY plane
sketch19 = doc.addObject("Sketcher::SketchObject", "Sketch018")
body.addObject(sketch19)
sketch19.AttachmentSupport = (doc.XY_Plane, [""])
sketch19.MapMode = "FlatFace"
sketch19.AttachmentOffset = App.Placement(Vector(0, 0, -2.500219), App.Rotation())
sketch19.addGeometry([
    Part.LineSegment(Vector(48, 6, 0), Vector(48, 0, 0)),  # 0
    Part.LineSegment(Vector(48, 0, 0), Vector(27, 0, 0)),  # 1
    Part.LineSegment(Vector(27, 0, 0), Vector(27, 6, 0)),  # 2
    Part.ArcOfCircle(Part.Circle(Vector(38, 6, 0), Vector(0, 0, 1), 10), math.radians(0), math.radians(180)),  # 3
    Part.LineSegment(Vector(-48, 0, 0), Vector(-48, 6, 0)),  # 4
    Part.ArcOfCircle(Part.Circle(Vector(-38, 6, 0), Vector(0, 0, 1), 10), math.radians(0), math.radians(180)),  # 5
    Part.LineSegment(Vector(-27, 6, 0), Vector(-27, 0, 0)),  # 6
    Part.LineSegment(Vector(-27, 0, 0), Vector(-48, 0, 0)),  # 7
], False)
sketch19.addConstraint([
    Sketcher.Constraint("Coincident", 0, 2, 1, 1),
    Sketcher.Constraint("Coincident", 1, 2, 2, 1),
    Sketcher.Constraint("Tangent", 2, 2, 3, 2),
    Sketcher.Constraint("Tangent", 3, 1, 0, 1),
    Sketcher.Constraint("Tangent", 4, 2, 5, 2),
    Sketcher.Constraint("Tangent", 5, 1, 6, 1),
    Sketcher.Constraint("Coincident", 6, 2, 7, 1),
    Sketcher.Constraint("Coincident", 7, 2, 4, 1),
    Sketcher.Constraint("Vertical", 0),
    Sketcher.Constraint("Horizontal", 1),
    Sketcher.Constraint("Vertical", 2),
    Sketcher.Constraint("Vertical", 4),
    Sketcher.Constraint("Vertical", 6),
    Sketcher.Constraint("Horizontal", 7),
    Sketcher.Constraint("Equal", 3, 5),
    Sketcher.Constraint("Symmetric", 1, 2, 6, 2, -1, 1),
    Sketcher.Constraint("PointOnObject", 0, 2, -1),
    Sketcher.Constraint("Horizontal", 3, 3, 5, 3),
    Sketcher.Constraint("Radius", 3, 10.5),
    Sketcher.Constraint("DistanceX", -1, 1, 0, 2, 48.0),
    Sketcher.Constraint("DistanceY", 0, 2, 0, 1, 6.25),
])
sketch19.setExpression("Constraints[18]", "Params.sketch19_radius")
sketch19.setExpression("Constraints[20]", "Params.sketch19_height")
pocket7 = doc.addObject("PartDesign::Pocket", "Pocket006")
body.addObject(pocket7)
pocket7.Profile = sketch19
pocket7.setExpression("Length", "Params.pocket7_length")
doc.recompute()

fillet = doc.addObject("PartDesign::Fillet", "Fillet")
body.addObject(fillet)
fillet.Base = (pocket7, edges_at(pocket7, [(54.5, 23.25, 0), (-54.5, 23.25, 0)]))
fillet.setExpression("Radius", "Params.fillet_radius")

doc.recompute()
